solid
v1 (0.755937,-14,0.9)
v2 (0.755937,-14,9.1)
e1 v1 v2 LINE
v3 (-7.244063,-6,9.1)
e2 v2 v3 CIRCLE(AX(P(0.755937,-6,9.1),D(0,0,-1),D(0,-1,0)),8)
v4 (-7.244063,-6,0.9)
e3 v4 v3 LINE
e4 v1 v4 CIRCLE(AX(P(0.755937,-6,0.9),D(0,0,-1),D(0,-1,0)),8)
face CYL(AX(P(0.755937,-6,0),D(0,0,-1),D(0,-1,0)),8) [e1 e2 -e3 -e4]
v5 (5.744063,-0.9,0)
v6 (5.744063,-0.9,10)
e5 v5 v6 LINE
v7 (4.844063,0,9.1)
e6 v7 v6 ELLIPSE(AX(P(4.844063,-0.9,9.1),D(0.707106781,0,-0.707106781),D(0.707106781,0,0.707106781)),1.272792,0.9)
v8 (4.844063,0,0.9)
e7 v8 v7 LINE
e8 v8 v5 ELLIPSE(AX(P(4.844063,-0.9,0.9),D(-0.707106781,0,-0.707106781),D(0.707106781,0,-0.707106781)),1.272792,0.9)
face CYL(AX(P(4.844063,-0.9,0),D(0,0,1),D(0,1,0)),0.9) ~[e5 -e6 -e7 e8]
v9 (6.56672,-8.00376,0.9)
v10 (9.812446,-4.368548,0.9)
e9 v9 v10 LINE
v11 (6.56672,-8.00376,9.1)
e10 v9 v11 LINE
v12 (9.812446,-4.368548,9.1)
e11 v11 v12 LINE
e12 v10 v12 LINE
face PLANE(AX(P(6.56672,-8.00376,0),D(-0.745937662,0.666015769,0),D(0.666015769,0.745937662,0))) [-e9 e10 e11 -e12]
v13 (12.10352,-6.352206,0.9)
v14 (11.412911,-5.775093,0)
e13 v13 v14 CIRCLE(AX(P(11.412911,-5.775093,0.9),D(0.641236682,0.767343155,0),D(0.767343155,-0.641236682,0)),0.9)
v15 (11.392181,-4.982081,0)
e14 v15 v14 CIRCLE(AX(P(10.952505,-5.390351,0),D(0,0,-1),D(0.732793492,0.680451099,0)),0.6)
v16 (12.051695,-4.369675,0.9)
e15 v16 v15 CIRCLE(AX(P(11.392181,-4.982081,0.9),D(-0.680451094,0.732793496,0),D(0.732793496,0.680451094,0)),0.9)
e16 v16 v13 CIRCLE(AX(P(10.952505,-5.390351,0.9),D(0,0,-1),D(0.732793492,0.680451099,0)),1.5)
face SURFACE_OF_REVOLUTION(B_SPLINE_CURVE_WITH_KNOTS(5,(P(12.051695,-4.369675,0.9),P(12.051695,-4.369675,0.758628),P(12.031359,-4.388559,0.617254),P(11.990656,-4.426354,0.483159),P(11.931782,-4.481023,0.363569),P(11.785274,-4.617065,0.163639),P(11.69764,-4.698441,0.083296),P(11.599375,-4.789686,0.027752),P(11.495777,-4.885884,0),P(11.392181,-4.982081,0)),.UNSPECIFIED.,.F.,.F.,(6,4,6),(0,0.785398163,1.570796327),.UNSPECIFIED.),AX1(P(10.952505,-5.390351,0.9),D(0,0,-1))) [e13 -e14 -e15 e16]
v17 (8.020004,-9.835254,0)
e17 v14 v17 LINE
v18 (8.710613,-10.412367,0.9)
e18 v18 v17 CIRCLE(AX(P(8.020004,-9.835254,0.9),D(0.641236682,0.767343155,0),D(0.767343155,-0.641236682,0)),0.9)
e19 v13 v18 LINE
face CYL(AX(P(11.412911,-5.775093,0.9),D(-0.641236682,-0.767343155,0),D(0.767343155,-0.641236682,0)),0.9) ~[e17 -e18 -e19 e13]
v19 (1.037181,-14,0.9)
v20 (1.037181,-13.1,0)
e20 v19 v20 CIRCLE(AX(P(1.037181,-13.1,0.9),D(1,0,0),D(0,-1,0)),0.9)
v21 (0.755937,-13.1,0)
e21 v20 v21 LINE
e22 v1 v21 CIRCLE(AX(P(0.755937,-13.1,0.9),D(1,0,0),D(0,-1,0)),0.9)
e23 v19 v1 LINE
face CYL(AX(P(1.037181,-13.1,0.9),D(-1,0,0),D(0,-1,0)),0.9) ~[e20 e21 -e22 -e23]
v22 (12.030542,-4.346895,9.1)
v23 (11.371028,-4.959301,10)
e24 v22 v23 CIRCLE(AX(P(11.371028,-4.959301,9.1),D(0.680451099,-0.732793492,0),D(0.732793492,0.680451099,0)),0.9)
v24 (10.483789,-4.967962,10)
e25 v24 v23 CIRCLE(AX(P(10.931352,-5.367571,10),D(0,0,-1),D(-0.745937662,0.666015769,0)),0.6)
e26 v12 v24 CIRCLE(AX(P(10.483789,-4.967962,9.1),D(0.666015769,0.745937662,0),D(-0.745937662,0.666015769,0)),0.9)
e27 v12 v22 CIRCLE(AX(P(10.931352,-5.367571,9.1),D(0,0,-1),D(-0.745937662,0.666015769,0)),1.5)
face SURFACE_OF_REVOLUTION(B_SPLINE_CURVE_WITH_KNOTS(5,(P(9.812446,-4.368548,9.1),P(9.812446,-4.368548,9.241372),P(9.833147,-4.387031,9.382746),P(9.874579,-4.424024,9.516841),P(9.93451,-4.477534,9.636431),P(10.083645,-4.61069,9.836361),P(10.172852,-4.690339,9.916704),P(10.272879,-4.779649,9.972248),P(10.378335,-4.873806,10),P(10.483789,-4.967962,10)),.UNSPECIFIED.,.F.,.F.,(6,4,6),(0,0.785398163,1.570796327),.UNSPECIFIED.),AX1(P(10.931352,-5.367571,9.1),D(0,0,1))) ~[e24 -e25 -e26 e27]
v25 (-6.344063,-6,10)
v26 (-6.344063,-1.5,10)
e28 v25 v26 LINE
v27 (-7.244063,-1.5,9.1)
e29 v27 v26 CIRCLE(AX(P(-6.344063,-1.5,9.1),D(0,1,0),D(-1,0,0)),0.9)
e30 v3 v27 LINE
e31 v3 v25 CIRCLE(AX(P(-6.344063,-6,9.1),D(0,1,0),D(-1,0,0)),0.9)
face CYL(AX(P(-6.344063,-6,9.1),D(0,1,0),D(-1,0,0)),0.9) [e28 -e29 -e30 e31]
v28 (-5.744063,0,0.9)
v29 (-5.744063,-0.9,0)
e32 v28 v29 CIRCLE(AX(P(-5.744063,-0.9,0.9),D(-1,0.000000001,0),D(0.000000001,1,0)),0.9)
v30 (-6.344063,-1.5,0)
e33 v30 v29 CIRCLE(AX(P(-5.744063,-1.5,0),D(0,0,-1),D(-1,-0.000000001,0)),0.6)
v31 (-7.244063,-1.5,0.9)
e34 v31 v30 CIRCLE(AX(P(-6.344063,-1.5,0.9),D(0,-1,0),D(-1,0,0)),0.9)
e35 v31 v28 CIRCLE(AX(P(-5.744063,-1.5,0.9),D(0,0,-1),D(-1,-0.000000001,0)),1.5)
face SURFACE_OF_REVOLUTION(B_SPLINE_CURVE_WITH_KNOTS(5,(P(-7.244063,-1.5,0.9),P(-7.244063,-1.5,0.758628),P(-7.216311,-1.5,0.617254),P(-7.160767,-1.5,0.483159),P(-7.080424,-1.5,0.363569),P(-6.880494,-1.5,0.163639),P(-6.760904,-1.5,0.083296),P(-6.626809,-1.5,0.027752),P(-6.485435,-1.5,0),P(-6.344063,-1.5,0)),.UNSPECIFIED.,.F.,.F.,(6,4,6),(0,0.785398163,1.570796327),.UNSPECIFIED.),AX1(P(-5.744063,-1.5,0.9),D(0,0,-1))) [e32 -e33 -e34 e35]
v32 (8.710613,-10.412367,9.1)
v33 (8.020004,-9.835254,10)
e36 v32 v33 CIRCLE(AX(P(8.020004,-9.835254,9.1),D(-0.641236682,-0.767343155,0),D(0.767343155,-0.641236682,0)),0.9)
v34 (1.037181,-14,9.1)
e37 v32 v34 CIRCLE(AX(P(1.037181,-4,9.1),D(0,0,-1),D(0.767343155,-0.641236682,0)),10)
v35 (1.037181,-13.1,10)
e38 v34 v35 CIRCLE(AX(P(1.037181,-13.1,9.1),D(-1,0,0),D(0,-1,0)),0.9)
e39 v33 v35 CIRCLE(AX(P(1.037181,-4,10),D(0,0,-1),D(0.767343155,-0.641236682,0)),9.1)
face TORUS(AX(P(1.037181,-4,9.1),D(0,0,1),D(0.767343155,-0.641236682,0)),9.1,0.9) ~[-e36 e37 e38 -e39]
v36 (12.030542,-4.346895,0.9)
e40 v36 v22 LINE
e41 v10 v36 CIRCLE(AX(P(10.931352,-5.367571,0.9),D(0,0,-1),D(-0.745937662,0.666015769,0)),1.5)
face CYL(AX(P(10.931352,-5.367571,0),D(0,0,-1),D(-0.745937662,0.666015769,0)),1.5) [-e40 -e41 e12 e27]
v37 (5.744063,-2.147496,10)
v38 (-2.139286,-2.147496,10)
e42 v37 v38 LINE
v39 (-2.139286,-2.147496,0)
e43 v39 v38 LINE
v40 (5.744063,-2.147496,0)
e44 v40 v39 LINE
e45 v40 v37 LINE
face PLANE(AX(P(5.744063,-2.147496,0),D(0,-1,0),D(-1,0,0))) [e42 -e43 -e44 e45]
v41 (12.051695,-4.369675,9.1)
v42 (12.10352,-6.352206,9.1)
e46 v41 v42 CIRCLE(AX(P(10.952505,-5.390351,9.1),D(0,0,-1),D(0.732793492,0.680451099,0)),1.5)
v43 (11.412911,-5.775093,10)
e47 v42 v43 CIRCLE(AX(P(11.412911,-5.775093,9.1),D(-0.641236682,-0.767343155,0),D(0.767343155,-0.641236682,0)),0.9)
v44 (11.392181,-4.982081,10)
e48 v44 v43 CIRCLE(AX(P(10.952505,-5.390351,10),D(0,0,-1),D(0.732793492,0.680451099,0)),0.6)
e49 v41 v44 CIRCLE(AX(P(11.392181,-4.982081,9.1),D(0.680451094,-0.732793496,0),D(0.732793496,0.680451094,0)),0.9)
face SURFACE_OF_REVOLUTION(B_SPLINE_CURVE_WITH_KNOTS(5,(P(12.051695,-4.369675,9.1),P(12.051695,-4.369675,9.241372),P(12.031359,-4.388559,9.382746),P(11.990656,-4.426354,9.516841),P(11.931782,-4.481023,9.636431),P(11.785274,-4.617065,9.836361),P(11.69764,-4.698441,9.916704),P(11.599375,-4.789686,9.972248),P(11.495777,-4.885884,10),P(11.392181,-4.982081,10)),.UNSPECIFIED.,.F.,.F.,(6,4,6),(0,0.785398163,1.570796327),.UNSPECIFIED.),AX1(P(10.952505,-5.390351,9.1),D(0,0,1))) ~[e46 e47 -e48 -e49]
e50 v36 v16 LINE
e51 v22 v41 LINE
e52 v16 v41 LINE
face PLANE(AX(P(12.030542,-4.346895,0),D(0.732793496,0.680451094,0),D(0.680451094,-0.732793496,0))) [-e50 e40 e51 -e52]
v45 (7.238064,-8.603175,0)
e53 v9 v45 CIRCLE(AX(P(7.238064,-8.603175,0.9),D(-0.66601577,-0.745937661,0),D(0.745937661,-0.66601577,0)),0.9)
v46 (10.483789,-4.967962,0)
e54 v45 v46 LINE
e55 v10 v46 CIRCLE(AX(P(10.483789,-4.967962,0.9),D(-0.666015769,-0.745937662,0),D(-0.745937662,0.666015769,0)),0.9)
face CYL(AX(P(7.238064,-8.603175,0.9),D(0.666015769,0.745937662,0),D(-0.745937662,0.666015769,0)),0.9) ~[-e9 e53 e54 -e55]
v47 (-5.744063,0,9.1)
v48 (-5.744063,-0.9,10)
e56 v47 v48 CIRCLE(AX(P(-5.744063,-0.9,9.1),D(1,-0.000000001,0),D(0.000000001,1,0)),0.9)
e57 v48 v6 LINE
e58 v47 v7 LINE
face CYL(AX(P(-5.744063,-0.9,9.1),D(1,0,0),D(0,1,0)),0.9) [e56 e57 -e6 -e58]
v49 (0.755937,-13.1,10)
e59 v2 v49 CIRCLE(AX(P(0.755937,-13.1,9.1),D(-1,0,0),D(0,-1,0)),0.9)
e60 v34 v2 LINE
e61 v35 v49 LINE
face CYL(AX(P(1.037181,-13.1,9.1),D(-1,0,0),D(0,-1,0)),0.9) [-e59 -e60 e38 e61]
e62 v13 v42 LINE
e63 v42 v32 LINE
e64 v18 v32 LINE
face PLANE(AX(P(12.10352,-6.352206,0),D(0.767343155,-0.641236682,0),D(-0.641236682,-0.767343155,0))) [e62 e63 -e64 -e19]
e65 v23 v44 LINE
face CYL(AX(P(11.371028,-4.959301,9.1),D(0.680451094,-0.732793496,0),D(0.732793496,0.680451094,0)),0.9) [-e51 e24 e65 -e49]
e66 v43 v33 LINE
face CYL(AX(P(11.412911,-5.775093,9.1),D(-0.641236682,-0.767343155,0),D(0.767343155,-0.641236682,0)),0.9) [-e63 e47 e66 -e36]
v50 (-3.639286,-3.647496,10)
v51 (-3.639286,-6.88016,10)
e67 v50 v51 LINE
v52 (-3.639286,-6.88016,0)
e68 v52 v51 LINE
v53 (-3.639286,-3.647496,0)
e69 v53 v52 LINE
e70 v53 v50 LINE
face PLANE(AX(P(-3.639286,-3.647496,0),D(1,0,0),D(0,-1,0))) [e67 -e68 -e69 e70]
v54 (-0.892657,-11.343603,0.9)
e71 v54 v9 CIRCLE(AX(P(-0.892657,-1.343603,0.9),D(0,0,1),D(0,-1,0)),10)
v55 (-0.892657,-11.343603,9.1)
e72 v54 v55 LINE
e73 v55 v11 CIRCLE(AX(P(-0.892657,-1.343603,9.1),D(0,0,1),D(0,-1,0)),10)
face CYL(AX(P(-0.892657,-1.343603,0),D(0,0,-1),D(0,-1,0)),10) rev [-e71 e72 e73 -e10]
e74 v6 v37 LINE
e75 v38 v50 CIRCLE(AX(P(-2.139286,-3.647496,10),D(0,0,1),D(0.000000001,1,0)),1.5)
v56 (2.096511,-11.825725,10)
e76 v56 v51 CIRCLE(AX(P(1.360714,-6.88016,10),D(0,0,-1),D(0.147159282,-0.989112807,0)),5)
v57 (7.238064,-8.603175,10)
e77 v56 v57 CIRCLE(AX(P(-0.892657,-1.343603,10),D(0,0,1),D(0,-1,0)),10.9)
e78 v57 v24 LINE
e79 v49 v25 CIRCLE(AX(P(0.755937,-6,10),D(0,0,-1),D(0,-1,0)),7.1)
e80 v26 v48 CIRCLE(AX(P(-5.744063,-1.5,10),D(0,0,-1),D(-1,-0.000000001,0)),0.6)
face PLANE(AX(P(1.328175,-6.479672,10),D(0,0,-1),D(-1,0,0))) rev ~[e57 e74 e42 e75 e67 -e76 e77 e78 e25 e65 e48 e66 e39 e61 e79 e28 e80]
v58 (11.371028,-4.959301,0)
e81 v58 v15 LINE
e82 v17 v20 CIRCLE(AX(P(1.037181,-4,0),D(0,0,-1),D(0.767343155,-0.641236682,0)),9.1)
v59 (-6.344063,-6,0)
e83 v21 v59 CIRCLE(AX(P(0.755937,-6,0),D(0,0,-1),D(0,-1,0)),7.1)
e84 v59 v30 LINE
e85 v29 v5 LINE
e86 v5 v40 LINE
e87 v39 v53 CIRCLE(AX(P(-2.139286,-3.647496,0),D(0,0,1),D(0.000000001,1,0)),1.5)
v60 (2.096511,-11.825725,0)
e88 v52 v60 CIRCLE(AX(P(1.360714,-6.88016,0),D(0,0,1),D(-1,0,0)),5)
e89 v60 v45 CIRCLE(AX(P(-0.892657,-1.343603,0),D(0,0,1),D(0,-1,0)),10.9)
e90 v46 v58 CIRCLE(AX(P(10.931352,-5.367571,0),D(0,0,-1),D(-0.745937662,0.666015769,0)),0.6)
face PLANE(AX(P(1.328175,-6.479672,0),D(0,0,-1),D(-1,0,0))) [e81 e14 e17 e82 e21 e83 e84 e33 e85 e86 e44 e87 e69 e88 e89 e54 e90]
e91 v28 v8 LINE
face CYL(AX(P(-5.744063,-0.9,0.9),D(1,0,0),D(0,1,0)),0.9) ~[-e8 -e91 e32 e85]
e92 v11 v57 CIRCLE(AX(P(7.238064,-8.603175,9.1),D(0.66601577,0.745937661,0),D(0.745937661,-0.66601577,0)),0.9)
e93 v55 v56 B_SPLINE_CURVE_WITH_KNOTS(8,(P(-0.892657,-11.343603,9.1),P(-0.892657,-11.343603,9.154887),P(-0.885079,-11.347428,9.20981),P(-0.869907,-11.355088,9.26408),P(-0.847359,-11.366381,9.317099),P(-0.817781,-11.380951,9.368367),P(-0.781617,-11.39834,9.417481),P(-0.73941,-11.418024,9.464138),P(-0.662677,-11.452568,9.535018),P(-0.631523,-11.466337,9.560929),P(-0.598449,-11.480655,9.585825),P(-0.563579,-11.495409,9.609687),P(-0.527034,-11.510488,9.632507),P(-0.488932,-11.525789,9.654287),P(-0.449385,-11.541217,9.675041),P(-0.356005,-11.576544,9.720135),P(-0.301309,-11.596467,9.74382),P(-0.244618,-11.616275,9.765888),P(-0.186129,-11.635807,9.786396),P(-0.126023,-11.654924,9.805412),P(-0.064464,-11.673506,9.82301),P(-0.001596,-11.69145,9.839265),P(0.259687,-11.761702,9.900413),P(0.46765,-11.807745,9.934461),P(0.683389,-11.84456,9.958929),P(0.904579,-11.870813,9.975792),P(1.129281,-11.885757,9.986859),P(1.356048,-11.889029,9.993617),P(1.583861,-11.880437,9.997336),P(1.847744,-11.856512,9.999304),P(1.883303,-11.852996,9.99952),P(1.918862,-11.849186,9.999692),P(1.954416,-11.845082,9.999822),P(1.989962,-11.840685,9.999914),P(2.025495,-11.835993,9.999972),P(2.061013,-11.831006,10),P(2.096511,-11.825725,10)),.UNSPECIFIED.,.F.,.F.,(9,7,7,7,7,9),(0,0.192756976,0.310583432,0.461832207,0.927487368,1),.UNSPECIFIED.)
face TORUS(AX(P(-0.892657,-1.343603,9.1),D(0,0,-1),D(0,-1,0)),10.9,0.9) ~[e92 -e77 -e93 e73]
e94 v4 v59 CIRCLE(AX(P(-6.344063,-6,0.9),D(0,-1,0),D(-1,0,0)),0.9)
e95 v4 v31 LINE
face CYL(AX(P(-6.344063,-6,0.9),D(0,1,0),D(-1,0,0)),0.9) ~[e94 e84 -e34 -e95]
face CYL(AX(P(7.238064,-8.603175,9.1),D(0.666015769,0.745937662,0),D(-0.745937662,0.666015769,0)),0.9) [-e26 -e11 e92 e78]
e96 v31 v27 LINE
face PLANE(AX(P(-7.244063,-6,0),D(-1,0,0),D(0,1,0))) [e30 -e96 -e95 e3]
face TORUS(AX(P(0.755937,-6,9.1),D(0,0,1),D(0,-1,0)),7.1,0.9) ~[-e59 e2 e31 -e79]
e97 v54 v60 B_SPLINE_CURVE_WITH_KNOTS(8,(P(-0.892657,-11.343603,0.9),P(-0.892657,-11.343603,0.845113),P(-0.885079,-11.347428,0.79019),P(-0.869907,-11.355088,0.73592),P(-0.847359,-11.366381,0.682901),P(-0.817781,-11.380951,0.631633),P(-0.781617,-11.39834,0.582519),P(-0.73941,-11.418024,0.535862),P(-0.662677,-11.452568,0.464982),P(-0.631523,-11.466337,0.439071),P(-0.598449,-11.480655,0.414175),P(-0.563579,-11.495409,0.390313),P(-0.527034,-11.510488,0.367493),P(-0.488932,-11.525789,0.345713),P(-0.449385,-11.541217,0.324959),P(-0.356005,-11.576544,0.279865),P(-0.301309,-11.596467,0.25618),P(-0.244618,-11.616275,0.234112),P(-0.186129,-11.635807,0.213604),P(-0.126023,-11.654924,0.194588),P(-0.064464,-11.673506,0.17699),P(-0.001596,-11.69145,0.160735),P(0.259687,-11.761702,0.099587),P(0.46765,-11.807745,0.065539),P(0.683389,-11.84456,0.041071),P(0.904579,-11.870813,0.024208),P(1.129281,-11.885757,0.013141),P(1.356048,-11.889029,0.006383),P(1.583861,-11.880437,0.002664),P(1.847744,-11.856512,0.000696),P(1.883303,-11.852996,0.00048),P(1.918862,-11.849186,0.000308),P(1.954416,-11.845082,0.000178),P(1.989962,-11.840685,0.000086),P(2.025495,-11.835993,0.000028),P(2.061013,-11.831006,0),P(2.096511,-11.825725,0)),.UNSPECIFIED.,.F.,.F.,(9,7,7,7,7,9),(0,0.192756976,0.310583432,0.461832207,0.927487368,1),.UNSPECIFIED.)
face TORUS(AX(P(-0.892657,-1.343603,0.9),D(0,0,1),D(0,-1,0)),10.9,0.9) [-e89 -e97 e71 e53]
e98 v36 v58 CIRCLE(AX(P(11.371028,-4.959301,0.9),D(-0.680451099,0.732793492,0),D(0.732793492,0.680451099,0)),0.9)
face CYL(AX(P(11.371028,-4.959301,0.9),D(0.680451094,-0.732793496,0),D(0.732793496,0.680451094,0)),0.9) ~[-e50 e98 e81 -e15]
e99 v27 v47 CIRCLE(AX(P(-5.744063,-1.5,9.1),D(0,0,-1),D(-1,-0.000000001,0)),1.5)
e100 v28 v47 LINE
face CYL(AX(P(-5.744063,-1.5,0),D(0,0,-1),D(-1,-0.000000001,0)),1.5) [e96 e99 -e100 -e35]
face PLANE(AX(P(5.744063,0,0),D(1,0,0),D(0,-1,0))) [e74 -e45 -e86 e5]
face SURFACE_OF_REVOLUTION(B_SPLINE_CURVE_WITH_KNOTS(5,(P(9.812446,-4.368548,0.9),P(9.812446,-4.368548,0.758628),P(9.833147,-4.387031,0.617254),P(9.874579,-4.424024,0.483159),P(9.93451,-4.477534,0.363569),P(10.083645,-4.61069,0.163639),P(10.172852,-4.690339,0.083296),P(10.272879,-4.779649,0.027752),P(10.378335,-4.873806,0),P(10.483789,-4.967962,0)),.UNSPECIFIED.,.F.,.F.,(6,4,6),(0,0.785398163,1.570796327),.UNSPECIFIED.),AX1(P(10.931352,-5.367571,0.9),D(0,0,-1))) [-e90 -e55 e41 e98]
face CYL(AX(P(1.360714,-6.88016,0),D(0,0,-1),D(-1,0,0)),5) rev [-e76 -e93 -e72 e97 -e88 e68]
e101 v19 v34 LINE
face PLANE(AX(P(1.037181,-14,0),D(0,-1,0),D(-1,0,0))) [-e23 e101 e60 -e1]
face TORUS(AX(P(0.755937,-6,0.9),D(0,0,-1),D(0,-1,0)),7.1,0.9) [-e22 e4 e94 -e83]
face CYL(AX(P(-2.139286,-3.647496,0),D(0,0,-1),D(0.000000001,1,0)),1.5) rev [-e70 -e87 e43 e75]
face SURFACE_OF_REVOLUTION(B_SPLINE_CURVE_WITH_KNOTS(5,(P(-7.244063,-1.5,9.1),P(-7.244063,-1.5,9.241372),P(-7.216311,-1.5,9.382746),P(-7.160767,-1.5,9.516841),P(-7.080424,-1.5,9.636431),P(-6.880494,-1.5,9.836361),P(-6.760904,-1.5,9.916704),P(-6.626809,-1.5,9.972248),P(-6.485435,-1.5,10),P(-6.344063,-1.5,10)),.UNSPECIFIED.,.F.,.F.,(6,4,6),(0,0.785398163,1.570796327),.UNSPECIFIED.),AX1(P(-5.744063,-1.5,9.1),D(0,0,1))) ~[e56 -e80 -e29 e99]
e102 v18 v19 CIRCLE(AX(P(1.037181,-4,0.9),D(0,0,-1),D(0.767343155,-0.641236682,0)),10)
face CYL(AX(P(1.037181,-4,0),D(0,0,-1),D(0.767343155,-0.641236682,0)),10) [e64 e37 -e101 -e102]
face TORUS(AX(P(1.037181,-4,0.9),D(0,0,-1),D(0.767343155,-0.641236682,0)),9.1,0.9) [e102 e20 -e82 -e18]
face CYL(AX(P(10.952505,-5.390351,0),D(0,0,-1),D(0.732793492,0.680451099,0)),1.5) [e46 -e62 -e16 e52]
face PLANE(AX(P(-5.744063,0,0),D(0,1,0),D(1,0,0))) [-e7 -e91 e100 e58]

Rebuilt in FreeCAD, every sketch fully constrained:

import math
import FreeCAD as App
import Part
import Sketcher

V = App.Vector
Q = App.Units.Quantity


def edges_at(feature, points):
    """Names of the edges that pass closest to the given points."""
    edges = feature.Shape.Edges
    near = lambda p: min(range(len(edges)), key=lambda i: edges[i].distToShape(Part.Vertex(*p))[0])
    return sorted({f"Edge{near(p) + 1}" for p in points})

doc = App.newDocument("Part")
body = doc.addObject("PartDesign::Body", "Body")

# Sketch on XY plane
sketch1 = body.newObject("Sketcher::SketchObject", "Sketch")
sketch1.AttachmentSupport = (doc.getObject("XY_Plane"), [""])
sketch1.MapMode = "FlatFace"
sketch1.addGeometry([
    Part.LineSegment(V(5.744063, 0, 0), V(-5.744063, 0, 0)),  # 0
    Part.ArcOfCircle(Part.Circle(V(-5.744063, -1.5, 0), V(0, 0, 1), 1.5), math.radians(90), math.radians(180)),  # 1
    Part.LineSegment(V(-7.244063, -1.5, 0), V(-7.244063, -6, 0)),  # 2
    Part.ArcOfCircle(Part.Circle(V(0.755937, -6, 0), V(0, 0, 1), 8), math.radians(180), math.radians(270)),  # 3
    Part.LineSegment(V(0.755937, -14, 0), V(1.037181, -14, 0)),  # 4
    Part.ArcOfCircle(Part.Circle(V(1.037181, -4, 0), V(0, 0, 1), 10), math.radians(-90), math.radians(-39.884098)),  # 5
    Part.LineSegment(V(8.710613, -10.412367, 0), V(12.10352, -6.352206, 0)),  # 6
    Part.ArcOfCircle(Part.Circle(V(10.952505, -5.390351, 0), V(0, 0, 1), 1.5), math.radians(-39.884098), math.radians(42.878904)),  # 7
    Part.LineSegment(V(12.051695, -4.369675, 0), V(12.030542, -4.346895, 0)),  # 8
    Part.ArcOfCircle(Part.Circle(V(10.931352, -5.367571, 0), V(0, 0, 1), 1.5), math.radians(42.878904), math.radians(138.2397)),  # 9
    Part.LineSegment(V(9.812446, -4.368548, 0), V(6.56672, -8.00376, 0)),  # 10
    Part.ArcOfCircle(Part.Circle(V(-0.892657, -1.343603, 0), V(0, 0, 1), 10), math.radians(-90), math.radians(-41.7603)),  # 11
    Part.ArcOfCircle(Part.Circle(V(1.360714, -6.88016, 0), V(0, 0, 1), 5), math.radians(180), math.radians(243.213047)),  # 12
    Part.LineSegment(V(-3.639286, -6.88016, 0), V(-3.639286, -3.647496, 0)),  # 13
    Part.ArcOfCircle(Part.Circle(V(-2.139286, -3.647496, 0), V(0, 0, 1), 1.5), math.radians(90), math.radians(180)),  # 14
    Part.LineSegment(V(-2.139286, -2.147496, 0), V(5.744063, -2.147496, 0)),  # 15
    Part.LineSegment(V(5.744063, -2.147496, 0), V(5.744063, 0, 0)),  # 16
], False)
sketch1.addConstraint([
    Sketcher.Constraint("Coincident", 0, 2, 1, 1),
    Sketcher.Constraint("Coincident", 1, 2, 2, 1),
    Sketcher.Constraint("Coincident", 2, 2, 3, 1),
    Sketcher.Constraint("Coincident", 3, 2, 4, 1),
    Sketcher.Constraint("Coincident", 4, 2, 5, 1),
    Sketcher.Constraint("Coincident", 5, 2, 6, 1),
    Sketcher.Constraint("Coincident", 6, 2, 7, 1),
    Sketcher.Constraint("Coincident", 7, 2, 8, 1),
    Sketcher.Constraint("Coincident", 8, 2, 9, 1),
    Sketcher.Constraint("Coincident", 9, 2, 10, 1),
    Sketcher.Constraint("Coincident", 10, 2, 11, 2),
    Sketcher.Constraint("Coincident", 11, 1, 12, 2),
    Sketcher.Constraint("Coincident", 12, 1, 13, 1),
    Sketcher.Constraint("Coincident", 13, 2, 14, 2),
    Sketcher.Constraint("Coincident", 14, 1, 15, 1),
    Sketcher.Constraint("Coincident", 15, 2, 16, 1),
    Sketcher.Constraint("Coincident", 16, 2, 0, 1),
    Sketcher.Constraint("Horizontal", 0),
    Sketcher.Constraint("Vertical", 2),
    Sketcher.Constraint("Horizontal", 4),
    Sketcher.Constraint("Vertical", 13),
    Sketcher.Constraint("Horizontal", 15),
    Sketcher.Constraint("Vertical", 16),
    Sketcher.Constraint("PointOnObject", 0, 2, -1),
    Sketcher.Constraint("Radius", 3, Q("8 mm")),
    Sketcher.Constraint("Radius", 5, Q("10 mm")),
    Sketcher.Constraint("Radius", 11, Q("10 mm")),
    Sketcher.Constraint("Radius", 12, Q("5 mm")),
    Sketcher.Constraint("Radius", 1, Q("1.5 mm")),
    Sketcher.Constraint("Radius", 7, Q("1.5 mm")),
    Sketcher.Constraint("Radius", 9, Q("1.5 mm")),
    Sketcher.Constraint("Radius", 14, Q("1.5 mm")),
    Sketcher.Constraint("DistanceY", 2, 2, 2, 1, Q("4.5 mm")),
    Sketcher.Constraint("DistanceY", 3, 3, -1, 1, Q("6 mm")),
    Sketcher.Constraint("DistanceY", 2, 2, -1, 1, Q("6 mm")),
    Sketcher.Constraint("DistanceX", 2, 2, 3, 2, Q("8 mm")),
    Sketcher.Constraint("DistanceX", 0, 2, 3, 3, Q("6.5 mm")),
    Sketcher.Constraint("DistanceX", 13, 2, 14, 1, Q("1.5 mm")),
    Sketcher.Constraint("DistanceY", 13, 2, 14, 1, Q("1.5 mm")),
    Sketcher.Constraint("DistanceX", 15, 1, 15, 2, Q("7.883349 mm")),
    Sketcher.Constraint("DistanceX", 12, 3, 5, 2, Q("7.349898 mm")),
    Sketcher.Constraint("DistanceY", 10, 2, 12, 3, Q("1.1236 mm")),
    Sketcher.Constraint("DistanceX", 0, 2, 0, 1, Q("11.488126 mm")),
    Sketcher.Constraint("DistanceX", 4, 1, 4, 2, Q("0.281245 mm")),
    Sketcher.Constraint("DistanceY", 13, 1, 13, 2, Q("3.232665 mm")),
    Sketcher.Constraint("DistanceY", 16, 1, 16, 2, Q("2.147496 mm")),
    Sketcher.Constraint("DistanceX", -1, 1, 5, 3, Q("1.037181 mm")),
    Sketcher.Constraint("DistanceY", 7, 3, -1, 1, Q("5.390351 mm")),
    Sketcher.Constraint("DistanceY", 9, 3, -1, 1, Q("5.367571 mm")),
    Sketcher.Constraint("DistanceY", 12, 3, -1, 1, Q("6.88016 mm")),
    Sketcher.Constraint("DistanceX", -1, 1, 4, 2, Q("1.037181 mm")),
    Sketcher.Constraint("DistanceX", -1, 1, 6, 2, Q("12.10352 mm")),
    Sketcher.Constraint("DistanceX", -1, 1, 10, 2, Q("6.56672 mm")),
    Sketcher.Constraint("DistanceX", 3, 3, 7, 3, Q("10.196568 mm")),
    Sketcher.Constraint("DistanceX", 5, 3, 9, 3, Q("9.894171 mm")),
    Sketcher.Constraint("DistanceX", 11, 3, 5, 3, Q("1.929838 mm")),
    Sketcher.Constraint("DistanceX", 7, 3, 7, 2, Q("1.09919 mm")),
    Sketcher.Constraint("DistanceY", 7, 2, 8, 2, Q("0.02278 mm")),
    Sketcher.Constraint("DistanceX", 9, 2, 7, 3, Q("1.140059 mm")),
])
pad1 = body.newObject("PartDesign::Pad", "Pad")
pad1.Profile = sketch1
pad1.Length = 10
doc.recompute()

fillet = body.newObject("PartDesign::Fillet", "Fillet")
fillet.Base = (pad1, edges_at(pad1, [
    (-6.805, -0.439, 10),
    (-7.244, -3.75, 10),
    (3.194, -10.471, 0),
    (8.19, -6.186, 0),
    (10.917, -3.868, 0),
    (12.041, -4.358, 0),
    (12.452, -5.351, 0),
    (10.407, -8.382, 0),
    (5.273, -13.059, 0),
    (-4.901, -11.657, 10),
    (0.897, -14, 0),
    (-4.901, -11.657, 0),
    (-7.244, -3.75, 0),
    (-6.805, -0.439, 0),
    (0, 0, 0),
    (0.897, -14, 10),
    (5.273, -13.059, 10),
    (5.744, 0, 5),
    (10.407, -8.382, 10),
    (12.452, -5.351, 10),
    (12.041, -4.358, 10),
    (10.917, -3.868, 10),
    (8.19, -6.186, 10),
    (3.194, -10.471, 10),
    (0, 0, 10),
]))
fillet.Radius = 0.9

doc.recompute()
